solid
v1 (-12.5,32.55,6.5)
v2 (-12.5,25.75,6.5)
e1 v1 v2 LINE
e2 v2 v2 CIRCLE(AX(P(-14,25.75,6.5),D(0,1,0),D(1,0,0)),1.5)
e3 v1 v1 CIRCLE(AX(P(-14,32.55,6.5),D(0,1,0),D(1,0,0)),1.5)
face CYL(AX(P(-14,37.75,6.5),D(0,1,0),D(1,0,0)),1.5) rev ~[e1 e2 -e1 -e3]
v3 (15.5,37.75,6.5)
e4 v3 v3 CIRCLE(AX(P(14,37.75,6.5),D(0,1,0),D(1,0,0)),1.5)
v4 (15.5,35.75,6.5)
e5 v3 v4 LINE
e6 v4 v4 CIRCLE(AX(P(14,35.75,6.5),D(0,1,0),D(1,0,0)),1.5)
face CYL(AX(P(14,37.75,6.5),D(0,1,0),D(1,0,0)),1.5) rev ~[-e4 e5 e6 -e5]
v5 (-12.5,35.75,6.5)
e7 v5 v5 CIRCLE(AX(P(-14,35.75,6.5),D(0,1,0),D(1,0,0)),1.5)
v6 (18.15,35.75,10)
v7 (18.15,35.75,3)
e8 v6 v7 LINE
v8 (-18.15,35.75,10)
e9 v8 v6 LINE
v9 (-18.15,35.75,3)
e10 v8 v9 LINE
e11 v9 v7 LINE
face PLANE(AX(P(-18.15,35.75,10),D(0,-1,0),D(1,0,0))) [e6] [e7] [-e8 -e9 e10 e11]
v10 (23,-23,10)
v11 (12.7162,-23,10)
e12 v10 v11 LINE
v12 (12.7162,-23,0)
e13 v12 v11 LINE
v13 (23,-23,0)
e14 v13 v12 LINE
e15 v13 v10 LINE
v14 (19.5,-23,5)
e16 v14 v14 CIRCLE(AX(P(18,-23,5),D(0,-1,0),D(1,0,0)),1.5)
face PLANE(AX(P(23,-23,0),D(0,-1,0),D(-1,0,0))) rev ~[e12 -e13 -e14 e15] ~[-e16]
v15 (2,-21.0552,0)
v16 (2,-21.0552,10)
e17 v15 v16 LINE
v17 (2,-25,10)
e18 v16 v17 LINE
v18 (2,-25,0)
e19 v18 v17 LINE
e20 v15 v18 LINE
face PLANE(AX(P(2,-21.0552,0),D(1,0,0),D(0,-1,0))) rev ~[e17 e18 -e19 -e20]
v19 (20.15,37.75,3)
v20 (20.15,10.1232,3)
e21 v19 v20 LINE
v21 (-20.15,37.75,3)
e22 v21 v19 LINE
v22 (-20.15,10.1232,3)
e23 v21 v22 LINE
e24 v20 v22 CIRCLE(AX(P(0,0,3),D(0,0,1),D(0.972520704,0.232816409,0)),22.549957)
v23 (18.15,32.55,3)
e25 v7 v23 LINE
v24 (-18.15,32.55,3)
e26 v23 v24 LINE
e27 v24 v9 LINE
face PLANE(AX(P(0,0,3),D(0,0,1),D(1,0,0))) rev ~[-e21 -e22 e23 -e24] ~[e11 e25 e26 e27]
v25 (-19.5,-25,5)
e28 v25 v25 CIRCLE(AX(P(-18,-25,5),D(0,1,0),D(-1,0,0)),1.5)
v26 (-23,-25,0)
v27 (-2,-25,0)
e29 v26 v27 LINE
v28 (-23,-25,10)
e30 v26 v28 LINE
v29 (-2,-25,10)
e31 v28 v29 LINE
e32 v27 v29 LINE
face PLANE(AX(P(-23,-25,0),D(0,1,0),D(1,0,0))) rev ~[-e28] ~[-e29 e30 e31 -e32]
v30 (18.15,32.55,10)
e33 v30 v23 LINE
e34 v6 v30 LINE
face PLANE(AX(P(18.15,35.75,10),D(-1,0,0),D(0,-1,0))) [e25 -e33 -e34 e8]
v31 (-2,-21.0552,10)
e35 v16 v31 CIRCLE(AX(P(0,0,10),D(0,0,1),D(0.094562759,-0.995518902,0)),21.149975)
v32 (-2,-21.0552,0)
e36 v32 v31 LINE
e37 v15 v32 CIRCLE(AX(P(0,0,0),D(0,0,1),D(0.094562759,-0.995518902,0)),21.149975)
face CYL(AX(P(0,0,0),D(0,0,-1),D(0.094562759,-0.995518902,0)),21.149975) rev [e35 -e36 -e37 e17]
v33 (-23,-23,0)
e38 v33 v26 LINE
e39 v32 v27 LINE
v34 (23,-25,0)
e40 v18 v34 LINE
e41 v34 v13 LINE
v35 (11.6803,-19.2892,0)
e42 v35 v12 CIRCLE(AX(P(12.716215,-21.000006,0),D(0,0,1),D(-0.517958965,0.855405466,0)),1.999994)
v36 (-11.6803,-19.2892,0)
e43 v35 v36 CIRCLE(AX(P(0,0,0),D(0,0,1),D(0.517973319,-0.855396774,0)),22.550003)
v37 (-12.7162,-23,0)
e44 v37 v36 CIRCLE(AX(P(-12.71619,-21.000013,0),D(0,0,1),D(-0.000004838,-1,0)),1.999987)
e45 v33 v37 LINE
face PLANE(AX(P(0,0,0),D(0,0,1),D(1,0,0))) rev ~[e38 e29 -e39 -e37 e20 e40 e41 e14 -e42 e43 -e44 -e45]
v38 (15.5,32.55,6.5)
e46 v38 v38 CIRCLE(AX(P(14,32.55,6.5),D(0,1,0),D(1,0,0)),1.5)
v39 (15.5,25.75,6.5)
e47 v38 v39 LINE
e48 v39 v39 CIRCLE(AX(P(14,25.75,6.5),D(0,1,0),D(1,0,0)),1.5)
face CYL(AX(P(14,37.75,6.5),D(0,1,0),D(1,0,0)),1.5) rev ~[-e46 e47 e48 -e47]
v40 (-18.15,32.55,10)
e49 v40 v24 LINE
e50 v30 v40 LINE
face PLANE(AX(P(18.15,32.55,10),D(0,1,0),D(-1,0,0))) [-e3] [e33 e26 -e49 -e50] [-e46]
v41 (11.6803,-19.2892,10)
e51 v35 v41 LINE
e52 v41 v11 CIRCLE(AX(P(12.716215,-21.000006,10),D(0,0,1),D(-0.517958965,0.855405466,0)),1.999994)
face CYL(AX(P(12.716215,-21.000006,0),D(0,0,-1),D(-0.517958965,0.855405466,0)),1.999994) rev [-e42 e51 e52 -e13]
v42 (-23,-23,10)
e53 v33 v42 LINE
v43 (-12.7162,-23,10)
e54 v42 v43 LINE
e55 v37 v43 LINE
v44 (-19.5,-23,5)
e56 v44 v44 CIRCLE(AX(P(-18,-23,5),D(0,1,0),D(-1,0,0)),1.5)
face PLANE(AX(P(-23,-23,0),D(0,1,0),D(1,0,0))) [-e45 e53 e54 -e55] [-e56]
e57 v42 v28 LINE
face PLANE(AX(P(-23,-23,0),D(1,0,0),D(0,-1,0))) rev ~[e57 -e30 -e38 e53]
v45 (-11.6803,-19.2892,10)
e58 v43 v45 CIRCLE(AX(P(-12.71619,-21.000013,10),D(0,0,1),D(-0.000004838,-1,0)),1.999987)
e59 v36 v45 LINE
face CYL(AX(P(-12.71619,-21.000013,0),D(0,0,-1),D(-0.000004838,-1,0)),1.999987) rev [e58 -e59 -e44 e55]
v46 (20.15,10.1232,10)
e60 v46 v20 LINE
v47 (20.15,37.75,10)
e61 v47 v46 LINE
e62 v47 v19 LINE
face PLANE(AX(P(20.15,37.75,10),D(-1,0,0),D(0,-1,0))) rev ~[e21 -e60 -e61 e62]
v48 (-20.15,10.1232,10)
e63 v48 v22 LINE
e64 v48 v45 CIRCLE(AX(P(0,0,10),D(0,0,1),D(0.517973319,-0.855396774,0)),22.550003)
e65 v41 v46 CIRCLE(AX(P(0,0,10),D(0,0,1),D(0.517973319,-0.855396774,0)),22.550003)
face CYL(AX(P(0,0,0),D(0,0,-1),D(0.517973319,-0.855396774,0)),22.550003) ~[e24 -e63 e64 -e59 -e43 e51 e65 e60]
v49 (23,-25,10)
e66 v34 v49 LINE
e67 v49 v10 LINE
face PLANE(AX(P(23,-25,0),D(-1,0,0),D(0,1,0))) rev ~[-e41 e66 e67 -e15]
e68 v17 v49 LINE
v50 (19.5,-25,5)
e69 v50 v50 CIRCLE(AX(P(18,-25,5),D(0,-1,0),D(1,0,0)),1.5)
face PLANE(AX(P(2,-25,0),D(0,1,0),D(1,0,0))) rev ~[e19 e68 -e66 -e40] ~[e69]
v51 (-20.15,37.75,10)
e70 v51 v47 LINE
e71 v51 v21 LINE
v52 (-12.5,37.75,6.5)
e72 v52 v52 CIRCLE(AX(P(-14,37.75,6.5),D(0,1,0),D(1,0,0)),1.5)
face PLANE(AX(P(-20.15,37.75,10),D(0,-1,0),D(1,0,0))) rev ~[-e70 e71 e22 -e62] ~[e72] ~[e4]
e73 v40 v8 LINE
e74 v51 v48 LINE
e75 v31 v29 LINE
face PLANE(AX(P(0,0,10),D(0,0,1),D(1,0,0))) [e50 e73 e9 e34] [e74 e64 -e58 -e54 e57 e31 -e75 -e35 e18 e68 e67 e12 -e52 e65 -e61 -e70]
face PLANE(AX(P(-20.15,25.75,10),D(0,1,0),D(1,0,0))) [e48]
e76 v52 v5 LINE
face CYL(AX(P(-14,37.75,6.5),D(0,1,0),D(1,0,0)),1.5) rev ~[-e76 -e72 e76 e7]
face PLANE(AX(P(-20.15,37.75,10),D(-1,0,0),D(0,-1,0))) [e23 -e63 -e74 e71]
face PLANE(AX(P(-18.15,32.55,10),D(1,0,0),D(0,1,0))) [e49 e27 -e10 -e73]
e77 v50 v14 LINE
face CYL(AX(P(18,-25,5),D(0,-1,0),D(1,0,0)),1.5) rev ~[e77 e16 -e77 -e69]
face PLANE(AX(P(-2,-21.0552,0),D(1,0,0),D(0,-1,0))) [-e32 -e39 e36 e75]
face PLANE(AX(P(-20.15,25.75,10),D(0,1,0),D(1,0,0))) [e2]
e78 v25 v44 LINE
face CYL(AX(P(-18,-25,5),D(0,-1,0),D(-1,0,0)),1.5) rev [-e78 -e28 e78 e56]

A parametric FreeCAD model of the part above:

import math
import FreeCAD as App
import Part
import Sketcher

V = App.Vector

doc = App.newDocument("Part")
body = doc.addObject("PartDesign::Body", "Body")

sketch1 = body.newObject("Sketcher::SketchObject", "Sketch")
sketch1.AttachmentSupport = (doc.getObject("XY_Plane"), [""])
sketch1.MapMode = "FlatFace"
sketch1.addGeometry(Part.LineSegment(V(-12.7162, -23, 0), V(-23, -23, 0)), False)
sketch1.addGeometry(Part.LineSegment(V(-23, -23, 0), V(-23, -25, 0)), False)
sketch1.addGeometry(Part.LineSegment(V(-23, -25, 0), V(-2, -25, 0)), False)
sketch1.addGeometry(Part.LineSegment(V(-2, -25, 0), V(-2, -21.0552, 0)), False)
sketch1.addGeometry(Part.ArcOfCircle(Part.Circle(V(0, 0, 0), V(0, 0, 1), 21.149975), math.radians(-84.573846), math.radians(264.573846)), False)
sketch1.addGeometry(Part.LineSegment(V(2, -21.0552, 0), V(2, -25, 0)), False)
sketch1.addGeometry(Part.LineSegment(V(2, -25, 0), V(23, -25, 0)), False)
sketch1.addGeometry(Part.LineSegment(V(23, -25, 0), V(23, -23, 0)), False)
sketch1.addGeometry(Part.LineSegment(V(23, -23, 0), V(12.7162, -23, 0)), False)
sketch1.addGeometry(Part.ArcOfCircle(Part.Circle(V(12.7162, -21, 0), V(0, 0, 1), 1.999981), math.radians(121.195165), math.radians(270)), False)
sketch1.addGeometry(Part.ArcOfCircle(Part.Circle(V(0, 0, 0), V(0, 0, 1), 22.550003), math.radians(-58.803596), math.radians(238.803596)), False)
sketch1.addGeometry(Part.ArcOfCircle(Part.Circle(V(-12.7162, -21, 0), V(0, 0, 1), 2), math.radians(-90), math.radians(58.804835)), False)
sketch1.addConstraint(Sketcher.Constraint("Coincident", 0, 2, 1, 1))
sketch1.addConstraint(Sketcher.Constraint("Coincident", 1, 2, 2, 1))
sketch1.addConstraint(Sketcher.Constraint("Coincident", 2, 2, 3, 1))
sketch1.addConstraint(Sketcher.Constraint("Coincident", 3, 2, 4, 2))
sketch1.addConstraint(Sketcher.Constraint("Coincident", 4, 1, 5, 1))
sketch1.addConstraint(Sketcher.Constraint("Coincident", 5, 2, 6, 1))
sketch1.addConstraint(Sketcher.Constraint("Coincident", 6, 2, 7, 1))
sketch1.addConstraint(Sketcher.Constraint("Coincident", 7, 2, 8, 1))
sketch1.addConstraint(Sketcher.Constraint("Tangent", 8, 2, 9, 2))
sketch1.addConstraint(Sketcher.Constraint("Tangent", 9, 1, 10, 1))
sketch1.addConstraint(Sketcher.Constraint("Tangent", 10, 2, 11, 2))
sketch1.addConstraint(Sketcher.Constraint("Tangent", 11, 1, 0, 1))
sketch1.addConstraint(Sketcher.Constraint("Horizontal", 0))
sketch1.addConstraint(Sketcher.Constraint("Vertical", 1))
sketch1.addConstraint(Sketcher.Constraint("Horizontal", 2))
sketch1.addConstraint(Sketcher.Constraint("Vertical", 3))
sketch1.addConstraint(Sketcher.Constraint("Vertical", 5))
sketch1.addConstraint(Sketcher.Constraint("Horizontal", 6))
sketch1.addConstraint(Sketcher.Constraint("Vertical", 7))
sketch1.addConstraint(Sketcher.Constraint("Horizontal", 8))
sketch1.addConstraint(Sketcher.Constraint("Coincident", 4, 3, -1, 1))
sketch1.addConstraint(Sketcher.Constraint("Coincident", 10, 3, -1, 1))
sketch1.addConstraint(Sketcher.Constraint("Equal", 9, 11))
sketch1.addConstraint(Sketcher.Constraint("Symmetric", 2, 2, 5, 2, -2))
sketch1.addConstraint(Sketcher.Constraint("Symmetric", 0, 2, 7, 2, -2))
sketch1.addConstraint(Sketcher.Constraint("Radius", 9, 2.0))
sketch1.addConstraint(Sketcher.Constraint("DistanceY", 1, 2, 1, 1, 2.0))
sketch1.addConstraint(Sketcher.Constraint("Radius", 4, 21.15))
sketch1.addConstraint(Sketcher.Constraint("DistanceY", 1, 2, -1, 1, 25.0))
sketch1.addConstraint(Sketcher.Constraint("DistanceX", 2, 2, -1, 1, 2.0))
sketch1.addConstraint(Sketcher.Constraint("DistanceX", 2, 2, 6, 2, 25.0))
sketch1.addConstraint(Sketcher.Constraint("Radius", 10, 22.55))
pad1 = body.newObject("PartDesign::Pad", "Pad")
pad1.Profile = sketch1
pad1.Length = 10

sketch2 = body.newObject("Sketcher::SketchObject", "Sketch001")
sketch2.AttachmentSupport = (doc.getObject("XZ_Plane"), [""])
sketch2.MapMode = "FlatFace"
sketch2.AttachmentOffset = App.Placement(V(0, 0, 25), App.Rotation())
sketch2.addGeometry(Part.Circle(V(18, 5, 0), V(0, 0, 1), 1.5), False)
sketch2.addConstraint(Sketcher.Constraint("Diameter", 0, 3.0))
sketch2.addConstraint(Sketcher.Constraint("DistanceX", -1, 1, 0, 3, 18.0))
sketch2.addConstraint(Sketcher.Constraint("DistanceY", -1, 1, 0, 3, 5.0))
pocket1 = body.newObject("PartDesign::Pocket", "Pocket")
pocket1.Profile = sketch2
pocket1.Length = 2
doc.recompute()

mirrored = body.newObject("PartDesign::Mirrored", "Mirrored")
mirrored.Originals = [pocket1]
mirrored.MirrorPlane = (doc.getObject("YZ_Plane"), [""])
body.Tip = mirrored

sketch3 = body.newObject("Sketcher::SketchObject", "Sketch002")
sketch3.AttachmentSupport = (doc.getObject("XY_Plane"), [""])
sketch3.MapMode = "FlatFace"
sketch3.AttachmentOffset = App.Placement(V(0, 0, 10), App.Rotation())
sketch3.addGeometry(Part.ArcOfCircle(Part.Circle(V(0, 0, 0), V(0, 0, 1), 22.549957), math.radians(26.67459), math.radians(153.32541)), False)
sketch3.addGeometry(Part.LineSegment(V(20.15, 10.1232, 0), V(20.15, 37.75, 0)), False)
sketch3.addGeometry(Part.LineSegment(V(20.15, 37.75, 0), V(-20.15, 37.75, 0)), False)
sketch3.addGeometry(Part.LineSegment(V(-20.15, 37.75, 0), V(-20.15, 10.1232, 0)), False)
sketch3.addGeometry(Part.LineSegment(V(-18.15, 32.55, 0), V(-18.15, 35.75, 0)), False)
sketch3.addGeometry(Part.LineSegment(V(-18.15, 35.75, 0), V(18.15, 35.75, 0)), False)
sketch3.addGeometry(Part.LineSegment(V(18.15, 35.75, 0), V(18.15, 32.55, 0)), False)
sketch3.addGeometry(Part.LineSegment(V(18.15, 32.55, 0), V(-18.15, 32.55, 0)), False)
sketch3.addConstraint(Sketcher.Constraint("Coincident", 0, 1, 1, 1))
sketch3.addConstraint(Sketcher.Constraint("Coincident", 1, 2, 2, 1))
sketch3.addConstraint(Sketcher.Constraint("Coincident", 2, 2, 3, 1))
sketch3.addConstraint(Sketcher.Constraint("Coincident", 3, 2, 0, 2))
sketch3.addConstraint(Sketcher.Constraint("Coincident", 4, 2, 5, 1))
sketch3.addConstraint(Sketcher.Constraint("Coincident", 5, 2, 6, 1))
sketch3.addConstraint(Sketcher.Constraint("Coincident", 6, 2, 7, 1))
sketch3.addConstraint(Sketcher.Constraint("Coincident", 7, 2, 4, 1))
sketch3.addConstraint(Sketcher.Constraint("Vertical", 1))
sketch3.addConstraint(Sketcher.Constraint("Horizontal", 2))
sketch3.addConstraint(Sketcher.Constraint("Vertical", 3))
sketch3.addConstraint(Sketcher.Constraint("Vertical", 4))
sketch3.addConstraint(Sketcher.Constraint("Horizontal", 5))
sketch3.addConstraint(Sketcher.Constraint("Vertical", 6))
sketch3.addConstraint(Sketcher.Constraint("Horizontal", 7))
sketch3.addConstraint(Sketcher.Constraint("Coincident", 0, 3, -1, 1))
sketch3.addConstraint(Sketcher.Constraint("Horizontal", 0, 1, 3, 2))
sketch3.addConstraint(Sketcher.Constraint("DistanceX", 5, 1, 5, 2, 36.3))
sketch3.addConstraint(Sketcher.Constraint("DistanceY", 4, 1, 4, 2, 3.2))
sketch3.addConstraint(Sketcher.Constraint("DistanceX", 2, 2, 4, 2, 2.0))
sketch3.addConstraint(Sketcher.Constraint("DistanceY", 4, 2, 2, 2, 2.0))
sketch3.addConstraint(Sketcher.Constraint("DistanceX", 5, 2, 1, 2, 2.0))
sketch3.addConstraint(Sketcher.Constraint("Radius", 0, 22.55))
sketch3.addConstraint(Sketcher.Constraint("DistanceY", -1, 1, 1, 2, 37.75))
pad2 = body.newObject("PartDesign::Pad", "Pad001")
pad2.Profile = sketch3
pad2.Length = 7
pad2.Reversed = True

sketch4 = body.newObject("Sketcher::SketchObject", "Sketch003")
sketch4.AttachmentSupport = (doc.getObject("XZ_Plane"), [""])
sketch4.MapMode = "FlatFace"
sketch4.AttachmentOffset = App.Placement(V(0, 0, -37.75), App.Rotation())
sketch4.addGeometry(Part.Circle(V(14, 6.5, 0), V(0, 0, 1), 1.5), False)
sketch4.addGeometry(Part.Circle(V(-14, 6.5, 0), V(0, 0, 1), 1.5), False)
sketch4.addConstraint(Sketcher.Constraint("Equal", 0, 1))
sketch4.addConstraint(Sketcher.Constraint("Symmetric", 0, 3, 1, 3, -2))
sketch4.addConstraint(Sketcher.Constraint("Diameter", 0, 3.0))
sketch4.addConstraint(Sketcher.Constraint("DistanceX", 1, 3, 0, 3, 28.0))
sketch4.addConstraint(Sketcher.Constraint("DistanceY", -1, 1, 0, 3, 6.5))
pocket2 = body.newObject("PartDesign::Pocket", "Pocket001")
pocket2.Profile = sketch4
pocket2.Length = 12
pocket2.Reversed = True

doc.recompute()
